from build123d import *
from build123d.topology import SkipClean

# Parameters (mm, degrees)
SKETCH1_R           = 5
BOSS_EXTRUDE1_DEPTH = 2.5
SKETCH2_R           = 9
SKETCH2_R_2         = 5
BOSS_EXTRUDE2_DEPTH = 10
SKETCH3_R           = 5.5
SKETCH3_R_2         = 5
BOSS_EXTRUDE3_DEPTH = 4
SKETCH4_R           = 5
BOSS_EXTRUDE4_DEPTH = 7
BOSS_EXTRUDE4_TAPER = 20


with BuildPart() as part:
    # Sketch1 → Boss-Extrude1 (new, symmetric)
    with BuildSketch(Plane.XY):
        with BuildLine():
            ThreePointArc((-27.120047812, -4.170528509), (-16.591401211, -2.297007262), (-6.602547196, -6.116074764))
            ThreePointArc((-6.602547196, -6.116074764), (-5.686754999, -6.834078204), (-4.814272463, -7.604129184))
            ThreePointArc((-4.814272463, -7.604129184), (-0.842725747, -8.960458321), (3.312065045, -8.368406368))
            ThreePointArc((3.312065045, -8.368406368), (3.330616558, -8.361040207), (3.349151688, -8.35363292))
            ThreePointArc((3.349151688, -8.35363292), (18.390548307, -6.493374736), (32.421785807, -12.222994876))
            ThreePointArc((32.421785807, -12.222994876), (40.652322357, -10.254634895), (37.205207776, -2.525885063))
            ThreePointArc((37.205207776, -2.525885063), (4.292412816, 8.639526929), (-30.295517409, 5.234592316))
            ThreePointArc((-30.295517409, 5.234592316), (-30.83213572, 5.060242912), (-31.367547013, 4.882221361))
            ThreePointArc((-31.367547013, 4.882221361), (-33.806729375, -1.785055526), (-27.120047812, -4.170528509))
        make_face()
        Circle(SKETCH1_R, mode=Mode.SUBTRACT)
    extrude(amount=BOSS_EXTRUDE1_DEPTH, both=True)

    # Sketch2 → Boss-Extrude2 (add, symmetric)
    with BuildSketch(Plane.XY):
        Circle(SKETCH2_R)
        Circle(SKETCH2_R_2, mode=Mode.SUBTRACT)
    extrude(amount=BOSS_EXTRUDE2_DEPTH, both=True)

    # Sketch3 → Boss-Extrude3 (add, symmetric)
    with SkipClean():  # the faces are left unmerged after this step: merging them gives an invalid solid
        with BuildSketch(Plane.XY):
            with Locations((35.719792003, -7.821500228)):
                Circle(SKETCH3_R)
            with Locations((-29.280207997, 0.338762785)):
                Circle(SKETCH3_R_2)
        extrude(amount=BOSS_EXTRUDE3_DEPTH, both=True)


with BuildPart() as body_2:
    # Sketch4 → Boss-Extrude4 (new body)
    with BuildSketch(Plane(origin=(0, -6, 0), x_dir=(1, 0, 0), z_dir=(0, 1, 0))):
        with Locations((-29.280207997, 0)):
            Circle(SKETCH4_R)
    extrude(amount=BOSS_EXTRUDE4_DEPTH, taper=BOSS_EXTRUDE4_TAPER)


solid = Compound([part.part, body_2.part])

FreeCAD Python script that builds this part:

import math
import FreeCAD as App
import Part
import Sketcher

V = App.Vector
Q = App.Units.Quantity

doc = App.newDocument("Part")
params = doc.addObject("Spreadsheet::Sheet", "Params")
for row, (alias, value) in enumerate([
    ("sketch1_diameter", "10 mm"),
    ("sketch1_radius", "20 mm"),
    ("sketch1_radius2", "9 mm"),
    ("sketch1_radius3", "30 mm"),
    ("sketch1_radius4", "5.5 mm"),
    ("pad1_length", "5 mm"),
    ("sketch2_diameter", "18 mm"),
    ("sketch2_diameter2", "10 mm"),
    ("pad2_length", "20 mm"),
    ("sketch3_diameter", "11 mm"),
    ("sketch3_diameter2", "10 mm"),
    ("pad3_length", "8 mm"),
    ("sketch4_diameter", "10 mm"),
    ("pad4_length", "7 mm"),
    ("pad4_taper", "-20 deg"),
], start=1):
    params.set(f"A{row}", alias)
    params.set(f"B{row}", "=" + value)
    params.setAlias(f"B{row}", alias)

body = doc.addObject("PartDesign::Body", "Body")

sketch1 = body.newObject("Sketcher::SketchObject", "Sketch")
sketch1.AttachmentSupport = (doc.getObject("XY_Plane"), [""])
sketch1.MapMode = "FlatFace"
sketch1.addGeometry([
    Part.ArcOfCircle(Part.Circle(V(-18.479407, -22.207694, 0), V(0, 0, 1), 20), math.radians(53.569804), math.radians(115.596588)),
    Part.ArcOfCircle(Part.Circle(V(-18.479407, -22.207694, 0), V(0, 0, 1), 20), math.radians(46.901337), math.radians(53.569804)),
    Part.ArcOfCircle(Part.Circle(V(0, 0, 0), V(0, 0, 1), 9), math.radians(-122.338429), math.radians(-68.40723)),
    Part.ArcOfCircle(Part.Circle(V(0.000022, -0.000056, 0), V(0, 0, 1), 8.99994), math.radians(-68.40723), math.radians(-68.153084)),
    Part.ArcOfCircle(Part.Circle(V(14.432661, -36.231147, 0), V(0, 0, 1), 30), math.radians(53.156061), math.radians(111.681721)),
    Part.ArcOfCircle(Part.Circle(V(35.719792, -7.8215, 0), V(0, 0, 1), 5.5), math.radians(-126.843939), math.radians(74.331235)),
    Part.ArcOfCircle(Part.Circle(V(-5.114452, -73.1815, 0), V(0, 0, 1), 82.36), math.radians(59.080213), math.radians(107.802922)),
    Part.ArcOfCircle(Part.Circle(V(-5.11445, -73.181509, 0), V(0, 0, 1), 82.36001), math.radians(107.802922), math.radians(108.587967)),
    Part.ArcOfCircle(Part.Circle(V(-29.280208, 0.338763, 0), V(0, 0, 1), 5), math.radians(114.674822), math.radians(295.596588)),
    Part.Circle(V(0, 0, 0), V(0, 0, 1), 5),
], False)
sketch1.addConstraint([
    Sketcher.Constraint("Tangent", 0, 1, 1, 2),
    Sketcher.Constraint("Coincident", 1, 1, 2, 1),
    Sketcher.Constraint("Tangent", 2, 2, 3, 1),
    Sketcher.Constraint("Coincident", 3, 2, 4, 2),
    Sketcher.Constraint("Tangent", 4, 1, 5, 1),
    Sketcher.Constraint("Coincident", 5, 2, 6, 1),
    Sketcher.Constraint("Tangent", 6, 2, 7, 1),
    Sketcher.Constraint("Coincident", 7, 2, 8, 1),
    Sketcher.Constraint("Tangent", 8, 2, 0, 2),
    Sketcher.Constraint("Coincident", 2, 3, -1, 1),
    Sketcher.Constraint("Coincident", 9, 3, -1, 1),
    Sketcher.Constraint("Equal", 0, 1),
    Sketcher.Constraint("Equal", 8, 9),
    Sketcher.Constraint("Diameter", 9, Q("10 mm")),
    Sketcher.Constraint("Radius", 0, Q("20 mm")),
    Sketcher.Constraint("Radius", 2, Q("9 mm")),
    Sketcher.Constraint("Radius", 4, Q("30 mm")),
    Sketcher.Constraint("Radius", 5, Q("5.5 mm")),
    Sketcher.Constraint("Radius", 6, Q("82.36 mm")),
    Sketcher.Constraint("Radius", 3, Q("8.99994 mm")),
    Sketcher.Constraint("Radius", 7, Q("82.36001 mm")),
    Sketcher.Constraint("DistanceX", 7, 2, 0, 1, Q("24.765 mm")),
    Sketcher.Constraint("DistanceY", 5, 3, -1, 1, Q("7.8215 mm")),
    Sketcher.Constraint("DistanceY", 6, 3, -1, 1, Q("73.1815 mm")),
    Sketcher.Constraint("DistanceX", 1, 3, 5, 3, Q("54.199199 mm")),
    Sketcher.Constraint("DistanceX", 8, 3, 1, 3, Q("10.800801 mm")),
    Sketcher.Constraint("DistanceX", 7, 2, 8, 2, Q("4.247499 mm")),
    Sketcher.Constraint("DistanceX", -1, 1, 4, 3, Q("14.432661 mm")),
    Sketcher.Constraint("DistanceX", 7, 3, -1, 1, Q("5.11445 mm")),
    Sketcher.Constraint("DistanceY", 1, 1, -1, 1, Q("7.604129 mm")),
    Sketcher.Constraint("DistanceY", 2, 2, 3, 3, Q("8.36835 mm")),
    Sketcher.Constraint("DistanceX", 6, 2, 8, 3, Q("1.015309 mm")),
])
sketch1.setExpression("Constraints[13]", "Params.sketch1_diameter")
sketch1.setExpression("Constraints[14]", "Params.sketch1_radius")
sketch1.setExpression("Constraints[15]", "Params.sketch1_radius2")
sketch1.setExpression("Constraints[16]", "Params.sketch1_radius3")
sketch1.setExpression("Constraints[17]", "Params.sketch1_radius4")
pad1 = body.newObject("PartDesign::Pad", "Pad")
pad1.Profile = sketch1
pad1.setExpression("Length", "Params.pad1_length")
pad1.Midplane = True

sketch2 = body.newObject("Sketcher::SketchObject", "Sketch001")
sketch2.AttachmentSupport = (doc.getObject("XY_Plane"), [""])
sketch2.MapMode = "FlatFace"
sketch2.addGeometry([
    Part.Circle(V(0, 0, 0), V(0, 0, 1), 9),
    Part.Circle(V(0, 0, 0), V(0, 0, 1), 5),
], False)
sketch2.addConstraint([
    Sketcher.Constraint("Coincident", 0, 3, -1, 1),
    Sketcher.Constraint("Coincident", 1, 3, -1, 1),
    Sketcher.Constraint("Diameter", 0, Q("18 mm")),
    Sketcher.Constraint("Diameter", 1, Q("10 mm")),
])
sketch2.setExpression("Constraints[2]", "Params.sketch2_diameter")
sketch2.setExpression("Constraints[3]", "Params.sketch2_diameter2")
pad2 = body.newObject("PartDesign::Pad", "Pad001")
pad2.Profile = sketch2
pad2.setExpression("Length", "Params.pad2_length")
pad2.Midplane = True

sketch3 = body.newObject("Sketcher::SketchObject", "Sketch002")
sketch3.AttachmentSupport = (doc.getObject("XY_Plane"), [""])
sketch3.MapMode = "FlatFace"
sketch3.addGeometry([
    Part.Circle(V(36, -8, 0), V(0, 0, 1), 6),
    Part.Circle(V(-29, 0, 0), V(0, 0, 1), 5),
], False)
sketch3.addConstraint([
    Sketcher.Constraint("Diameter", 0, Q("11 mm")),
    Sketcher.Constraint("Diameter", 1, Q("10 mm")),
    Sketcher.Constraint("DistanceX", 1, 3, 0, 3, Q("65 mm")),
    Sketcher.Constraint("DistanceY", 0, 3, -1, 1, Q("7.8215 mm")),
    Sketcher.Constraint("DistanceX", -1, 1, 0, 3, Q("35.719792 mm")),
    Sketcher.Constraint("DistanceY", -1, 1, 1, 3, Q("0.338763 mm")),
])
sketch3.setExpression("Constraints[0]", "Params.sketch3_diameter")
sketch3.setExpression("Constraints[1]", "Params.sketch3_diameter2")
pad3 = body.newObject("PartDesign::Pad", "Pad002")
pad3.Profile = sketch3
pad3.setExpression("Length", "Params.pad3_length")
pad3.Midplane = True
body2 = doc.addObject("PartDesign::Body", "Body001")

sketch4 = body2.newObject("Sketcher::SketchObject", "Sketch003")
sketch4.AttachmentSupport = (doc.getObject("XZ_Plane001"), [""])
sketch4.MapMode = "FlatFace"
sketch4.AttachmentOffset = App.Placement(V(0, 0, 6), App.Rotation())
sketch4.addGeometry(Part.Circle(V(-29, 0, 0), V(0, 0, 1), 5), False)
sketch4.addConstraint([
    Sketcher.Constraint("PointOnObject", 0, 3, -1),
    Sketcher.Constraint("Diameter", 0, Q("10 mm")),
    Sketcher.Constraint("DistanceX", 0, 3, -1, 1, Q("29.280208 mm")),
])
sketch4.setExpression("Constraints[1]", "Params.sketch4_diameter")
pad4 = body2.newObject("PartDesign::Pad", "Pad003")
pad4.Profile = sketch4
pad4.setExpression("Length", "Params.pad4_length")
pad4.Reversed = True
pad4.setExpression("TaperAngle", "Params.pad4_taper")

doc.recompute()
